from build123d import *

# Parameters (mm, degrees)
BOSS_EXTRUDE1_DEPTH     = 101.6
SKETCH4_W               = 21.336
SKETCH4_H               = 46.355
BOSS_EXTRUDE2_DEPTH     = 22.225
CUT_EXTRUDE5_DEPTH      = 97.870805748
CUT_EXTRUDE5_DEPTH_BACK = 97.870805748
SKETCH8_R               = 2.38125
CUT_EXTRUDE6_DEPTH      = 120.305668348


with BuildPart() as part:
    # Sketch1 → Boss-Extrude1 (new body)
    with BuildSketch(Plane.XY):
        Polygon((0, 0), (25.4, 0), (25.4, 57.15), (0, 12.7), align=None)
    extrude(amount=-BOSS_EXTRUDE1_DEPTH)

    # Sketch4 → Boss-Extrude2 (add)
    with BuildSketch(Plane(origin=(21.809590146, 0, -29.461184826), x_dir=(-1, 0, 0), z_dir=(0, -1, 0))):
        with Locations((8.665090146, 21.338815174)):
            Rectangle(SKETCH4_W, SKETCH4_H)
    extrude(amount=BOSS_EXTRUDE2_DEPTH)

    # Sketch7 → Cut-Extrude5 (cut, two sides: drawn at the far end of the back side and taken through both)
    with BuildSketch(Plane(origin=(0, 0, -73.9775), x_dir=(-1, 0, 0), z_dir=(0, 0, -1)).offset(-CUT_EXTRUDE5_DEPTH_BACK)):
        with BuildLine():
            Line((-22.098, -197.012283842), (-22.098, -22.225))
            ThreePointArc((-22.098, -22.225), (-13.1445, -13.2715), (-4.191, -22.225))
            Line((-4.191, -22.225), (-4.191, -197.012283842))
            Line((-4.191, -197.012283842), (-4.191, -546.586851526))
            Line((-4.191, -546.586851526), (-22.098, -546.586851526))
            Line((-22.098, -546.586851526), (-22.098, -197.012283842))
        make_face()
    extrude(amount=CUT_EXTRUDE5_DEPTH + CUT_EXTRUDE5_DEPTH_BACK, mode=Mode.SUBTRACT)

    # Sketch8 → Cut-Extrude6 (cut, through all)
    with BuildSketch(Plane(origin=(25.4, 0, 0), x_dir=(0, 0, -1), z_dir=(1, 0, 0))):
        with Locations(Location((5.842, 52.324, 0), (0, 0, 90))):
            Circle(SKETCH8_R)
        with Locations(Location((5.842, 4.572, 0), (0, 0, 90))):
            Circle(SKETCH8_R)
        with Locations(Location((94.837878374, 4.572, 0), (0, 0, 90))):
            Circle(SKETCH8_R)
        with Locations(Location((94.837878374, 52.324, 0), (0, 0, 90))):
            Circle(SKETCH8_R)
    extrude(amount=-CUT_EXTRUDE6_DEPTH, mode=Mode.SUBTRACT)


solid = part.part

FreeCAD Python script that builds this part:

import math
import FreeCAD as App
import Part
import Sketcher
Q = App.Units.Quantity

doc = App.newDocument("Part")
body = doc.addObject("PartDesign::Body", "Body")

# Sketch on XY plane
sketch1 = doc.addObject("Sketcher::SketchObject", "Sketch")
body.addObject(sketch1)
sketch1.AttachmentSupport = (doc.XY_Plane, [""])
sketch1.MapMode = "FlatFace"
sketch1.addGeometry([
    Part.LineSegment(App.Vector(0, 0, 0), App.Vector(25, 0, 0)),
    Part.LineSegment(App.Vector(25, 0, 0), App.Vector(25, 57, 0)),
    Part.LineSegment(App.Vector(25, 57, 0), App.Vector(0, 13, 0)),
    Part.LineSegment(App.Vector(0, 13, 0), App.Vector(0, 0, 0)),
], False)
sketch1.addConstraint([
    Sketcher.Constraint("Coincident", 0, 2, 1, 1),
    Sketcher.Constraint("Coincident", 1, 2, 2, 1),
    Sketcher.Constraint("Coincident", 2, 2, 3, 1),
    Sketcher.Constraint("Coincident", 3, 2, 0, 1),
    Sketcher.Constraint("Horizontal", 0),
    Sketcher.Constraint("Vertical", 1),
    Sketcher.Constraint("Vertical", 3),
    Sketcher.Constraint("Coincident", 3, 2, -1, 1),
    Sketcher.Constraint("DistanceX", 0, 1, 0, 2, Q("1 in")),
    Sketcher.Constraint("DistanceY", 3, 2, 3, 1, Q("0.5 in")),
    Sketcher.Constraint("DistanceY", 1, 1, 1, 2, Q("2.25 in")),
])
pad1 = doc.addObject("PartDesign::Pad", "Pad")
body.addObject(pad1)
pad1.Profile = sketch1
pad1.Length = Q("4 in")
pad1.Reversed = True

# Sketch on XZ plane
sketch2 = doc.addObject("Sketcher::SketchObject", "Sketch001")
body.addObject(sketch2)
sketch2.AttachmentSupport = (doc.XZ_Plane, [""])
sketch2.MapMode = "FlatFace"
sketch2.addGeometry([
    Part.LineSegment(App.Vector(24, -74, 0), App.Vector(24, -28, 0)),
    Part.LineSegment(App.Vector(24, -28, 0), App.Vector(2, -28, 0)),
    Part.LineSegment(App.Vector(2, -28, 0), App.Vector(2, -74, 0)),
    Part.LineSegment(App.Vector(2, -74, 0), App.Vector(24, -74, 0)),
], False)
sketch2.addConstraint([
    Sketcher.Constraint("Coincident", 0, 2, 1, 1),
    Sketcher.Constraint("Coincident", 1, 2, 2, 1),
    Sketcher.Constraint("Coincident", 2, 2, 3, 1),
    Sketcher.Constraint("Coincident", 3, 2, 0, 1),
    Sketcher.Constraint("Vertical", 0),
    Sketcher.Constraint("Horizontal", 1),
    Sketcher.Constraint("Vertical", 2),
    Sketcher.Constraint("Horizontal", 3),
    Sketcher.Constraint("DistanceX", 1, 2, 1, 1, Q("0.84 in")),
    Sketcher.Constraint("DistanceY", 0, 1, 0, 2, Q("1.825 in")),
    Sketcher.Constraint("DistanceX", -1, 1, 0, 2, Q("0.9375 in")),
    Sketcher.Constraint("DistanceY", 0, 2, -1, 1, Q("1.0875 in")),
])
pad2 = doc.addObject("PartDesign::Pad", "Pad001")
body.addObject(pad2)
pad2.Profile = sketch2
pad2.Length = Q("0.875 in")

# Sketch on XY plane
sketch3 = doc.addObject("Sketcher::SketchObject", "Sketch002")
body.addObject(sketch3)
sketch3.AttachmentSupport = (doc.XY_Plane, [""])
sketch3.MapMode = "FlatFace"
sketch3.AttachmentOffset = App.Placement(App.Vector(0, 0, -2.9125 * 25.4), App.Rotation())
sketch3.addGeometry([
    Part.ArcOfCircle(Part.Circle(App.Vector(13, -22, 0), App.Vector(0, 0, 1), 9), math.radians(0), math.radians(180)),
    Part.LineSegment(App.Vector(22, -22, 0), App.Vector(22, -547, 0)),
    Part.LineSegment(App.Vector(22, -547, 0), App.Vector(4, -547, 0)),
    Part.LineSegment(App.Vector(4, -547, 0), App.Vector(4, -22, 0)),
], False)
sketch3.addConstraint([
    Sketcher.Constraint("Tangent", 0, 1, 1, 1),
    Sketcher.Constraint("Coincident", 1, 2, 2, 1),
    Sketcher.Constraint("Coincident", 2, 2, 3, 1),
    Sketcher.Constraint("Tangent", 3, 2, 0, 2),
    Sketcher.Constraint("Vertical", 1),
    Sketcher.Constraint("Horizontal", 2),
    Sketcher.Constraint("Vertical", 3),
    Sketcher.Constraint("Radius", 0, Q("0.3525 in")),
    Sketcher.Constraint("DistanceX", -1, 1, 0, 1, Q("0.87 in")),
    Sketcher.Constraint("DistanceY", 0, 3, -1, 1, Q("0.875 in")),
    Sketcher.Constraint("DistanceY", 1, 2, 1, 1, 524.361852),
])
pocket1 = doc.addObject("PartDesign::Pocket", "Pocket")
body.addObject(pocket1)
pocket1.Profile = sketch3
pocket1.Type = "ThroughAll"
pocket1.Midplane = True

# Sketch on YZ plane
sketch4 = doc.addObject("Sketcher::SketchObject", "Sketch003")
body.addObject(sketch4)
sketch4.AttachmentSupport = (doc.YZ_Plane, [""])
sketch4.MapMode = "FlatFace"
sketch4.AttachmentOffset = App.Placement(App.Vector(0, 0, 1 * 25.4), App.Rotation())
sketch4.addGeometry([
    Part.Circle(App.Vector(52.3, -5.8, 0), App.Vector(0, 0, 1), 2.4),
    Part.Circle(App.Vector(4.6, -5.8, 0), App.Vector(0, 0, 1), 2.4),
    Part.Circle(App.Vector(4.6, -94.8, 0), App.Vector(0, 0, 1), 2.4),
    Part.Circle(App.Vector(52.3, -94.8, 0), App.Vector(0, 0, 1), 2.4),
], False)
sketch4.addConstraint([
    Sketcher.Constraint("Equal", 0, 1),
    Sketcher.Constraint("Equal", 1, 2),
    Sketcher.Constraint("Equal", 2, 3),
    Sketcher.Constraint("Horizontal", 0, 3, 1, 3),
    Sketcher.Constraint("Horizontal", 2, 3, 3, 3),
    Sketcher.Constraint("Vertical", 1, 3, 2, 3),
    Sketcher.Constraint("Vertical", 0, 3, 3, 3),
    Sketcher.Constraint("Diameter", 0, Q("0.1875 in")),
    Sketcher.Constraint("DistanceX", -1, 1, 0, 3, Q("2.06 in")),
    Sketcher.Constraint("DistanceY", 0, 3, -1, 1, Q("0.23 in")),
    Sketcher.Constraint("DistanceX", -1, 1, 1, 3, Q("0.18 in")),
    Sketcher.Constraint("DistanceY", 2, 3, -1, 1, 94.837878),
])
pocket2 = doc.addObject("PartDesign::Pocket", "Pocket001")
body.addObject(pocket2)
pocket2.Profile = sketch4
pocket2.Type = "ThroughAll"

doc.recompute()
